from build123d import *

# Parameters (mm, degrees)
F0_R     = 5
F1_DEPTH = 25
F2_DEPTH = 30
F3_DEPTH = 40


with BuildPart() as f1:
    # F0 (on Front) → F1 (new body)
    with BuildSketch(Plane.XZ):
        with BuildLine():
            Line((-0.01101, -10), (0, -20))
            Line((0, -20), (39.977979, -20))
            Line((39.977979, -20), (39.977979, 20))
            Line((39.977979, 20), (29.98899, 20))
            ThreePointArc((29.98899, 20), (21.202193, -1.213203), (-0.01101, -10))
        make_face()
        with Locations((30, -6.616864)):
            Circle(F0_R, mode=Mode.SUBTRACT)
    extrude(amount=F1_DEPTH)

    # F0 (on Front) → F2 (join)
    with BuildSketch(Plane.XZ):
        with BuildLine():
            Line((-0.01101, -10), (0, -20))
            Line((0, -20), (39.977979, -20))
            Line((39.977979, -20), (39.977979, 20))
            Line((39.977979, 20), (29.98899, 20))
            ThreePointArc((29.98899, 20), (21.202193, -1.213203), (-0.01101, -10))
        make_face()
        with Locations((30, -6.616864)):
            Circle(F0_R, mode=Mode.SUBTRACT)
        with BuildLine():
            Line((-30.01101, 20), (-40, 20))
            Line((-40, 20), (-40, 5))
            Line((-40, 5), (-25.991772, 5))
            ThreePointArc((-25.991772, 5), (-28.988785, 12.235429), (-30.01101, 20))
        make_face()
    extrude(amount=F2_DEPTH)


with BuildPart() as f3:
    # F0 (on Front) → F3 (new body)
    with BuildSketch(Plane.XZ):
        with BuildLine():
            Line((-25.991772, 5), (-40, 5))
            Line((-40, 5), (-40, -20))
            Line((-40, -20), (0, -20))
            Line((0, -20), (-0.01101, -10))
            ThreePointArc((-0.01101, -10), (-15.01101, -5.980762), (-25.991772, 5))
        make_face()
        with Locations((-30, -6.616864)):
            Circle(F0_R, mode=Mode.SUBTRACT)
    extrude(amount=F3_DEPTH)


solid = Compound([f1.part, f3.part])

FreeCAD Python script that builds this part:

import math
import FreeCAD as App
import Part
import Sketcher
from FreeCAD import Vector

doc = App.newDocument("Part")
body = doc.addObject("PartDesign::Body", "Body")
body.AllowCompound = True

sketch1 = doc.addObject("Sketcher::SketchObject", "Sketch")
body.addObject(sketch1)
sketch1.AttachmentSupport = (doc.XZ_Plane, [""])
sketch1.MapMode = "FlatFace"
sketch1.addGeometry([
    Part.LineSegment(Vector(0, -10, 0), Vector(0, -20, 0)),
    Part.LineSegment(Vector(0, -20, 0), Vector(40, -20, 0)),
    Part.LineSegment(Vector(40, -20, 0), Vector(40, 20, 0)),
    Part.LineSegment(Vector(40, 20, 0), Vector(30, 20, 0)),
    Part.ArcOfCircle(Part.Circle(Vector(0, 20, 0), Vector(0, 0, 1), 30), math.radians(-90), math.radians(0)),
    Part.Circle(Vector(30, -7, 0), Vector(0, 0, 1), 5),
], False)
sketch1.addConstraint([
    Sketcher.Constraint("Coincident", 0, 2, 1, 1),
    Sketcher.Constraint("Coincident", 1, 2, 2, 1),
    Sketcher.Constraint("Coincident", 2, 2, 3, 1),
    Sketcher.Constraint("Coincident", 3, 2, 4, 2),
    Sketcher.Constraint("Coincident", 4, 1, 0, 1),
    Sketcher.Constraint("Horizontal", 1),
    Sketcher.Constraint("Vertical", 2),
    Sketcher.Constraint("Horizontal", 3),
    Sketcher.Constraint("PointOnObject", 0, 2, -2),
    Sketcher.Constraint("Horizontal", 4, 3, 2, 2),
    Sketcher.Constraint("Diameter", 5, 10.0),
    Sketcher.Constraint("Radius", 4, 30.000001),
    Sketcher.Constraint("DistanceY", 2, 1, 2, 2, 40.0),
    Sketcher.Constraint("DistanceY", -1, 1, 4, 3, 20.000001),
    Sketcher.Constraint("DistanceX", -1, 1, 5, 3, 30.0),
    Sketcher.Constraint("DistanceX", 4, 1, 3, 2, 30.0),
    Sketcher.Constraint("DistanceX", 1, 1, 1, 2, 39.977979),
    Sketcher.Constraint("DistanceX", 3, 2, 3, 1, 9.988989),
    Sketcher.Constraint("DistanceY", 5, 3, -1, 1, 6.616864),
])
pad1 = doc.addObject("PartDesign::Pad", "Pad")
body.addObject(pad1)
pad1.Profile = sketch1
pad1.Length = 25

sketch2 = doc.addObject("Sketcher::SketchObject", "Sketch001")
body.addObject(sketch2)
sketch2.AttachmentSupport = (doc.XZ_Plane, [""])
sketch2.MapMode = "FlatFace"
sketch2.addGeometry([
    Part.LineSegment(Vector(0, -10, 0), Vector(0, -20, 0)),
    Part.LineSegment(Vector(0, -20, 0), Vector(40, -20, 0)),
    Part.LineSegment(Vector(40, -20, 0), Vector(40, 20, 0)),
    Part.LineSegment(Vector(40, 20, 0), Vector(30, 20, 0)),
    Part.ArcOfCircle(Part.Circle(Vector(0, 20, 0), Vector(0, 0, 1), 30), math.radians(-90), math.radians(0)),
    Part.Circle(Vector(30, -7, 0), Vector(0, 0, 1), 5),
    Part.LineSegment(Vector(-30, 20, 0), Vector(-40, 20, 0)),
    Part.LineSegment(Vector(-40, 20, 0), Vector(-40, 5, 0)),
    Part.LineSegment(Vector(-40, 5, 0), Vector(-26, 5, 0)),
    Part.ArcOfCircle(Part.Circle(Vector(0, 20, 0), Vector(0, 0, 1), 30), math.radians(180), math.radians(210)),
], False)
sketch2.addConstraint([
    Sketcher.Constraint("Coincident", 0, 2, 1, 1),
    Sketcher.Constraint("Coincident", 1, 2, 2, 1),
    Sketcher.Constraint("Coincident", 2, 2, 3, 1),
    Sketcher.Constraint("Coincident", 3, 2, 4, 2),
    Sketcher.Constraint("Coincident", 4, 1, 0, 1),
    Sketcher.Constraint("Coincident", 6, 2, 7, 1),
    Sketcher.Constraint("Coincident", 7, 2, 8, 1),
    Sketcher.Constraint("Coincident", 8, 2, 9, 2),
    Sketcher.Constraint("Coincident", 9, 1, 6, 1),
    Sketcher.Constraint("Horizontal", 1),
    Sketcher.Constraint("Vertical", 2),
    Sketcher.Constraint("Horizontal", 3),
    Sketcher.Constraint("Horizontal", 6),
    Sketcher.Constraint("Vertical", 7),
    Sketcher.Constraint("Horizontal", 8),
    Sketcher.Constraint("Coincident", 9, 3, 4, 3),
    Sketcher.Constraint("PointOnObject", 0, 2, -2),
    Sketcher.Constraint("Horizontal", 9, 3, 2, 2),
    Sketcher.Constraint("Horizontal", 3, 2, 6, 2),
    Sketcher.Constraint("Equal", 3, 6),
    Sketcher.Constraint("Diameter", 5, 10.0),
    Sketcher.Constraint("Radius", 4, 30.000001),
    Sketcher.Constraint("DistanceY", 2, 1, 2, 2, 40.0),
    Sketcher.Constraint("DistanceY", 7, 2, 7, 1, 15.0),
    Sketcher.Constraint("DistanceY", -1, 1, 4, 3, 20.000001),
    Sketcher.Constraint("DistanceX", -1, 1, 5, 3, 30.0),
    Sketcher.Constraint("DistanceX", 6, 2, -1, 1, 40.0),
    Sketcher.Constraint("DistanceX", 9, 1, 4, 3, 29.999999),
    Sketcher.Constraint("DistanceX", 1, 1, 1, 2, 39.977979),
    Sketcher.Constraint("DistanceX", 4, 1, -1, 1, 0.01101),
    Sketcher.Constraint("DistanceY", 5, 3, -1, 1, 6.616864),
])
pad2 = doc.addObject("PartDesign::Pad", "Pad001")
body.addObject(pad2)
pad2.Profile = sketch2
pad2.Length = 30
body2 = doc.addObject("PartDesign::Body", "Body001")

sketch3 = doc.addObject("Sketcher::SketchObject", "Sketch002")
body2.addObject(sketch3)
sketch3.AttachmentSupport = (doc.getObject("XZ_Plane001"), [""])
sketch3.MapMode = "FlatFace"
sketch3.addGeometry([
    Part.LineSegment(Vector(-26, 5, 0), Vector(-40, 5, 0)),
    Part.LineSegment(Vector(-40, 5, 0), Vector(-40, -20, 0)),
    Part.LineSegment(Vector(-40, -20, 0), Vector(0, -20, 0)),
    Part.LineSegment(Vector(0, -20, 0), Vector(0, -10, 0)),
    Part.ArcOfCircle(Part.Circle(Vector(0, 20, 0), Vector(0, 0, 1), 30), math.radians(-150), math.radians(-90)),
    Part.Circle(Vector(-30, -7, 0), Vector(0, 0, 1), 5),
], False)
sketch3.addConstraint([
    Sketcher.Constraint("Coincident", 0, 2, 1, 1),
    Sketcher.Constraint("Coincident", 1, 2, 2, 1),
    Sketcher.Constraint("Coincident", 2, 2, 3, 1),
    Sketcher.Constraint("Coincident", 3, 2, 4, 2),
    Sketcher.Constraint("Coincident", 4, 1, 0, 1),
    Sketcher.Constraint("Horizontal", 0),
    Sketcher.Constraint("Vertical", 1),
    Sketcher.Constraint("Horizontal", 2),
    Sketcher.Constraint("PointOnObject", 2, 2, -2),
    Sketcher.Constraint("Vertical", 4, 3, 3, 2),
    Sketcher.Constraint("Diameter", 5, 10.0),
    Sketcher.Constraint("Radius", 4, 30.0),
    Sketcher.Constraint("DistanceX", 2, 1, 2, 2, 40.0),
    Sketcher.Constraint("DistanceY", 1, 2, 1, 1, 25.0),
    Sketcher.Constraint("DistanceY", -1, 1, 4, 3, 20.0),
    Sketcher.Constraint("DistanceX", 5, 3, -1, 1, 30.0),
    Sketcher.Constraint("DistanceY", -1, 1, 0, 2, 5.0),
    Sketcher.Constraint("DistanceX", 0, 2, 0, 1, 14.008228),
    Sketcher.Constraint("DistanceY", 5, 3, -1, 1, 6.616864),
])
pad3 = doc.addObject("PartDesign::Pad", "Pad002")
body2.addObject(pad3)
pad3.Profile = sketch3
pad3.Length = 40

doc.recompute()
